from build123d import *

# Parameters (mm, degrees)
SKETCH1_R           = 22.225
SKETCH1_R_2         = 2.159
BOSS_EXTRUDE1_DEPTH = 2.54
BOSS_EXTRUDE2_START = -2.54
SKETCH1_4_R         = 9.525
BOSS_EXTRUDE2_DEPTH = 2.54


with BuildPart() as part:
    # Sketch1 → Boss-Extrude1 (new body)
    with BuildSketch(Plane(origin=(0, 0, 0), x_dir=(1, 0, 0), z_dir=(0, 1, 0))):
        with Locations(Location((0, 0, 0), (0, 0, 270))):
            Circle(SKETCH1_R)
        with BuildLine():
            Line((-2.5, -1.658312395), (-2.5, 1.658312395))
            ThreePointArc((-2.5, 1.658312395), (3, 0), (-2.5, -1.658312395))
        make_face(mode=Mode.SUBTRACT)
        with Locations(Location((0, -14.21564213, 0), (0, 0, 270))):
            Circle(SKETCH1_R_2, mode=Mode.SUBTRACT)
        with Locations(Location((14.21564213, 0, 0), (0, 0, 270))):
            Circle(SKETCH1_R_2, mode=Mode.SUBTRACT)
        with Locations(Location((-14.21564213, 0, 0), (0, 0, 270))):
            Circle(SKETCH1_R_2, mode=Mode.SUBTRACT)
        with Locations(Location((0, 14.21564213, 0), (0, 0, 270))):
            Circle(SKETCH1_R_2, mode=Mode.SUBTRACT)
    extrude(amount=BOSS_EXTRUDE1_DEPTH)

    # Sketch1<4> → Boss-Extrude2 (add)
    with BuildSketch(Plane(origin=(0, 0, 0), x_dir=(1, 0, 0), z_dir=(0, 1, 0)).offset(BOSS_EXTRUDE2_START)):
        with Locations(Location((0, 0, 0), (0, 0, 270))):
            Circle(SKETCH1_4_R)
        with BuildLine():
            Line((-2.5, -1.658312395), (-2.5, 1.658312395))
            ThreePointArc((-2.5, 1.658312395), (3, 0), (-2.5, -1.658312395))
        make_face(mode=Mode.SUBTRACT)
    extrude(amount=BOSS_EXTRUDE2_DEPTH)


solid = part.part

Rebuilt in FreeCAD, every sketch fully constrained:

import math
import FreeCAD as App
import Part
import Sketcher
Q = App.Units.Quantity

doc = App.newDocument("Part")
body = doc.addObject("PartDesign::Body", "Body")

# Sketch on XZ plane
sketch1 = body.newObject("Sketcher::SketchObject", "Sketch")
sketch1.AttachmentSupport = (doc.getObject("XZ_Plane"), [""])
sketch1.MapMode = "FlatFace"
sketch1.addGeometry(Part.Circle(App.Vector(0, 0, 0), App.Vector(0, 0, 1), 22.2), False)
sketch1.addGeometry(Part.Circle(App.Vector(-14.2, 0, 0), App.Vector(0, 0, 1), 2.2), False)
sketch1.addGeometry(Part.Circle(App.Vector(0, -14.2, 0), App.Vector(0, 0, 1), 2.2), False)
sketch1.addGeometry(Part.ArcOfCircle(Part.Circle(App.Vector(0, 0, 0), App.Vector(0, 0, 1), 3), math.radians(-146), math.radians(146)), False)
sketch1.addGeometry(Part.LineSegment(App.Vector(-2.5, 1.7, 0), App.Vector(-2.5, -1.7, 0)), False)
sketch1.addGeometry(Part.Circle(App.Vector(14.2, 0, 0), App.Vector(0, 0, 1), 2.2), False)
sketch1.addGeometry(Part.Circle(App.Vector(0, 14.2, 0), App.Vector(0, 0, 1), 2.2), False)
sketch1.addConstraint(Sketcher.Constraint("Coincident", 3, 1, 4, 2))
sketch1.addConstraint(Sketcher.Constraint("Coincident", 4, 1, 3, 2))
sketch1.addConstraint(Sketcher.Constraint("Vertical", 4))
sketch1.addConstraint(Sketcher.Constraint("Coincident", 0, 3, -1, 1))
sketch1.addConstraint(Sketcher.Constraint("Coincident", 3, 3, -1, 1))
sketch1.addConstraint(Sketcher.Constraint("Equal", 1, 2))
sketch1.addConstraint(Sketcher.Constraint("Equal", 2, 5))
sketch1.addConstraint(Sketcher.Constraint("Equal", 5, 6))
sketch1.addConstraint(Sketcher.Constraint("Symmetric", 1, 3, 5, 3, -1, 1))
sketch1.addConstraint(Sketcher.Constraint("Symmetric", 2, 3, 6, 3, -1, 1))
sketch1.addConstraint(Sketcher.Constraint("PointOnObject", 1, 3, -1))
sketch1.addConstraint(Sketcher.Constraint("PointOnObject", 2, 3, -2))
sketch1.addConstraint(Sketcher.Constraint("Diameter", 0, Q("1.75 in")))
sketch1.addConstraint(Sketcher.Constraint("Diameter", 1, Q("0.17 in")))
sketch1.addConstraint(Sketcher.Constraint("Radius", 3, Q("3 mm")))
sketch1.addConstraint(Sketcher.Constraint("DistanceX", 3, 1, -1, 1, Q("2.5 mm")))
sketch1.addConstraint(Sketcher.Constraint("DistanceY", 2, 3, 3, 1, Q("12.55733 mm")))
sketch1.addConstraint(Sketcher.Constraint("DistanceX", 1, 3, -1, 1, Q("14.215642 mm")))
pad1 = body.newObject("PartDesign::Pad", "Pad")
pad1.Profile = sketch1
pad1.Length = Q("0.1 in")
pad1.Reversed = True

# Sketch on XZ plane
sketch2 = body.newObject("Sketcher::SketchObject", "Sketch001")
sketch2.AttachmentSupport = (doc.getObject("XZ_Plane"), [""])
sketch2.MapMode = "FlatFace"
sketch2.AttachmentOffset = App.Placement(App.Vector(0, 0, 0.1 * 25.4), App.Rotation())
sketch2.addGeometry(Part.Circle(App.Vector(0, 0, 0), App.Vector(0, 0, 1), 9.5), False)
sketch2.addGeometry(Part.ArcOfCircle(Part.Circle(App.Vector(0, 0, 0), App.Vector(0, 0, 1), 3), math.radians(-146), math.radians(146)), False)
sketch2.addGeometry(Part.LineSegment(App.Vector(-2.5, 1.7, 0), App.Vector(-2.5, -1.7, 0)), False)
sketch2.addConstraint(Sketcher.Constraint("Coincident", 1, 1, 2, 2))
sketch2.addConstraint(Sketcher.Constraint("Coincident", 2, 1, 1, 2))
sketch2.addConstraint(Sketcher.Constraint("Vertical", 2))
sketch2.addConstraint(Sketcher.Constraint("Coincident", 0, 3, -1, 1))
sketch2.addConstraint(Sketcher.Constraint("Coincident", 1, 3, -1, 1))
sketch2.addConstraint(Sketcher.Constraint("Diameter", 0, Q("0.75 in")))
sketch2.addConstraint(Sketcher.Constraint("Radius", 1, Q("3 mm")))
sketch2.addConstraint(Sketcher.Constraint("DistanceX", 1, 1, -1, 1, Q("2.5 mm")))
pad2 = body.newObject("PartDesign::Pad", "Pad001")
pad2.Profile = sketch2
pad2.Length = Q("0.1 in")
pad2.Reversed = True

doc.recompute()
